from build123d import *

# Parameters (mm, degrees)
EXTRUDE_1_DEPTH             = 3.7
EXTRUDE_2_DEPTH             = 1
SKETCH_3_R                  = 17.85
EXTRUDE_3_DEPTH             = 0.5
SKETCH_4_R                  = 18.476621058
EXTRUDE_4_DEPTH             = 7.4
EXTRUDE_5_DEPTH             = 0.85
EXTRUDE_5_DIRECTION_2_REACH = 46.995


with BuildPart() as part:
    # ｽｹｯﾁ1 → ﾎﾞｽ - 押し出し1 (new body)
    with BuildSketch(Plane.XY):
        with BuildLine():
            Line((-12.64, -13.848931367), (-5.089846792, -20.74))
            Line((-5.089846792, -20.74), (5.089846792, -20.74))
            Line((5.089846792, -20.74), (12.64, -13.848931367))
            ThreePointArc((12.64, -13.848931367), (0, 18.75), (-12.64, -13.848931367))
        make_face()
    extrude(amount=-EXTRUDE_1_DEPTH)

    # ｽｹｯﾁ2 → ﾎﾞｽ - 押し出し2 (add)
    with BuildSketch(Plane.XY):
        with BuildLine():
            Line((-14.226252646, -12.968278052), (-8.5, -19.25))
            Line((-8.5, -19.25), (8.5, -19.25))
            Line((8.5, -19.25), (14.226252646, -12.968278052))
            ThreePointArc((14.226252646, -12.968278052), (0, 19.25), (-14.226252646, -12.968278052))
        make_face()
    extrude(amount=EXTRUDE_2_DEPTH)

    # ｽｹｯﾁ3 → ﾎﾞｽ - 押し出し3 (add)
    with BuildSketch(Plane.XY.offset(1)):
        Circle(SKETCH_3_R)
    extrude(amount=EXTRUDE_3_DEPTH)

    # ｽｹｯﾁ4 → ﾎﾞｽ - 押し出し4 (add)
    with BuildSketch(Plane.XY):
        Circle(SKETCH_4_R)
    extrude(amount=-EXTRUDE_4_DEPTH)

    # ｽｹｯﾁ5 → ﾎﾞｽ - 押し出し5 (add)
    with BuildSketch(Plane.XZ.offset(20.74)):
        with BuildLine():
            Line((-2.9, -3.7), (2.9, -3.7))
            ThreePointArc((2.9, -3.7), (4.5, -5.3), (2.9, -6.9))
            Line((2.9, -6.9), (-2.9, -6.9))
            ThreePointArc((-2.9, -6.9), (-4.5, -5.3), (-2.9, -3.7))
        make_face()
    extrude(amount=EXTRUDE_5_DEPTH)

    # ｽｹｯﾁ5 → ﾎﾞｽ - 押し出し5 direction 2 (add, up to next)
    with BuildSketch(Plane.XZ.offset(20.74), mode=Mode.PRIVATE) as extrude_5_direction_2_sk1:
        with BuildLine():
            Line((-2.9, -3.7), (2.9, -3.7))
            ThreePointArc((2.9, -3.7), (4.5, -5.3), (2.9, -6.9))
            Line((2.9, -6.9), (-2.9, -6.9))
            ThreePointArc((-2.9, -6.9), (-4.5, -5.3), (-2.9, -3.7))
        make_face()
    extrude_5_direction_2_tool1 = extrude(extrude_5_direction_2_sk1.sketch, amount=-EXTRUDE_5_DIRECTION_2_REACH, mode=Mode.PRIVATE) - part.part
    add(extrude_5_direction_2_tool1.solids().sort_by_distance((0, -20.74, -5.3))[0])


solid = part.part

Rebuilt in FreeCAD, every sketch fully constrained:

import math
import FreeCAD as App
import Part
import Sketcher

V = App.Vector

doc = App.newDocument("Part")
params = doc.addObject("Spreadsheet::Sheet", "Params")
for row, (alias, value) in enumerate([
    ("sketch1_radius", "18.75 mm"),
    ("pad1_length", "3.7 mm"),
    ("sketch2_width", "17 mm"),
    ("sketch2_radius", "19.25 mm"),
    ("sketch2_length", "8.5 mm"),
    ("pad2_length", "1 mm"),
    ("sketch3_diameter", "35.7 mm"),
    ("pad3_length", "0.5 mm"),
    ("pad4_length", "7.4 mm"),
    ("sketch5_radius", "1.6 mm"),
    ("sketch5_width", "5.8 mm"),
    ("pad5_length", "0.85 mm"),
    ("sketch6_radius", "1.6 mm"),
    ("sketch6_width", "5.8 mm"),
], start=1):
    params.set(f"A{row}", alias)
    params.set(f"B{row}", "=" + value)
    params.setAlias(f"B{row}", alias)

body = doc.addObject("PartDesign::Body", "Body")
body.AllowCompound = True

sketch1 = body.newObject("Sketcher::SketchObject", "Sketch")
sketch1.AttachmentSupport = (doc.getObject("XY_Plane"), [""])
sketch1.MapMode = "FlatFace"
sketch1.addGeometry([
    Part.LineSegment(V(-12.64, -13.848931, 0), V(-5.089847, -20.74, 0)),
    Part.LineSegment(V(-5.089847, -20.74, 0), V(5.089847, -20.74, 0)),
    Part.LineSegment(V(5.089847, -20.74, 0), V(12.64, -13.848931, 0)),
    Part.ArcOfCircle(Part.Circle(V(0, 0, 0), V(0, 0, 1), 18.75), math.radians(-47.613115), math.radians(227.613115)),
], False)
sketch1.addConstraint([
    Sketcher.Constraint("Coincident", 0, 2, 1, 1),
    Sketcher.Constraint("Coincident", 1, 2, 2, 1),
    Sketcher.Constraint("Tangent", 2, 2, 3, 1),
    Sketcher.Constraint("Tangent", 3, 2, 0, 1),
    Sketcher.Constraint("Horizontal", 1),
    Sketcher.Constraint("Coincident", 3, 3, -1, 1),
    Sketcher.Constraint("Horizontal", 2, 2, 3, 2),
    Sketcher.Constraint("Radius", 3, 18.75),
    Sketcher.Constraint("DistanceY", 0, 2, -1, 1, 20.74),
    Sketcher.Constraint("DistanceX", -1, 1, 2, 2, 12.64),
])
sketch1.setExpression("Constraints[7]", "Params.sketch1_radius")
pad1 = body.newObject("PartDesign::Pad", "Pad")
pad1.Profile = sketch1
pad1.setExpression("Length", "Params.pad1_length")
pad1.Reversed = True

sketch2 = body.newObject("Sketcher::SketchObject", "Sketch001")
sketch2.AttachmentSupport = (doc.getObject("XY_Plane"), [""])
sketch2.MapMode = "FlatFace"
sketch2.addGeometry([
    Part.LineSegment(V(-14.226253, -12.968278, 0), V(-8.5, -19.25, 0)),
    Part.LineSegment(V(-8.5, -19.25, 0), V(8.5, -19.25, 0)),
    Part.LineSegment(V(8.5, -19.25, 0), V(14.226253, -12.968278, 0)),
    Part.ArcOfCircle(Part.Circle(V(0, 0, 0), V(0, 0, 1), 19.25), math.radians(-42.351479), math.radians(222.351479)),
], False)
sketch2.addConstraint([
    Sketcher.Constraint("Coincident", 0, 2, 1, 1),
    Sketcher.Constraint("Coincident", 1, 2, 2, 1),
    Sketcher.Constraint("Tangent", 2, 2, 3, 1),
    Sketcher.Constraint("Tangent", 3, 2, 0, 1),
    Sketcher.Constraint("Horizontal", 1),
    Sketcher.Constraint("Coincident", 3, 3, -1, 1),
    Sketcher.Constraint("Horizontal", 2, 2, 3, 2),
    Sketcher.Constraint("DistanceX", 1, 1, 1, 2, 17.0),
    Sketcher.Constraint("Radius", 3, 19.25),
    Sketcher.Constraint("Distance", 0, 8.5),
])
sketch2.setExpression("Constraints[7]", "Params.sketch2_width")
sketch2.setExpression("Constraints[8]", "Params.sketch2_radius")
sketch2.setExpression("Constraints[9]", "Params.sketch2_length")
pad2 = body.newObject("PartDesign::Pad", "Pad001")
pad2.Profile = sketch2
pad2.setExpression("Length", "Params.pad2_length")

sketch3 = body.newObject("Sketcher::SketchObject", "Sketch002")
sketch3.AttachmentSupport = (doc.getObject("XY_Plane"), [""])
sketch3.MapMode = "FlatFace"
sketch3.AttachmentOffset = App.Placement(V(0, 0, 1), App.Rotation())
sketch3.addGeometry(Part.Circle(V(0, 0, 0), V(0, 0, 1), 17.85), False)
sketch3.addConstraint([
    Sketcher.Constraint("Coincident", 0, 3, -1, 1),
    Sketcher.Constraint("Diameter", 0, 35.7),
])
sketch3.setExpression("Constraints[1]", "Params.sketch3_diameter")
pad3 = body.newObject("PartDesign::Pad", "Pad002")
pad3.Profile = sketch3
pad3.setExpression("Length", "Params.pad3_length")

sketch4 = body.newObject("Sketcher::SketchObject", "Sketch003")
sketch4.AttachmentSupport = (doc.getObject("XY_Plane"), [""])
sketch4.MapMode = "FlatFace"
sketch4.addGeometry(Part.Circle(V(0, 0, 0), V(0, 0, 1), 18.476621), False)
sketch4.addConstraint([
    Sketcher.Constraint("Coincident", 0, 3, -1, 1),
    Sketcher.Constraint("Diameter", 0, 36.953242),
])
pad4 = body.newObject("PartDesign::Pad", "Pad003")
pad4.Profile = sketch4
pad4.setExpression("Length", "Params.pad4_length")
pad4.Reversed = True

sketch5 = body.newObject("Sketcher::SketchObject", "Sketch004")
sketch5.AttachmentSupport = (doc.getObject("XZ_Plane"), [""])
sketch5.MapMode = "FlatFace"
sketch5.AttachmentOffset = App.Placement(V(0, 0, 20.74), App.Rotation())
sketch5.addGeometry([
    Part.LineSegment(V(2.9, -3.7, 0), V(-2.9, -3.7, 0)),
    Part.ArcOfCircle(Part.Circle(V(-2.9, -5.3, 0), V(0, 0, 1), 1.6), math.radians(90), math.radians(270)),
    Part.LineSegment(V(-2.9, -6.9, 0), V(2.9, -6.9, 0)),
    Part.ArcOfCircle(Part.Circle(V(2.9, -5.3, 0), V(0, 0, 1), 1.6), math.radians(-90), math.radians(90)),
], False)
sketch5.addConstraint([
    Sketcher.Constraint("Tangent", 0, 2, 1, 1),
    Sketcher.Constraint("Tangent", 1, 2, 2, 1),
    Sketcher.Constraint("Tangent", 2, 2, 3, 1),
    Sketcher.Constraint("Tangent", 3, 2, 0, 1),
    Sketcher.Constraint("Horizontal", 0),
    Sketcher.Constraint("Horizontal", 2),
    Sketcher.Constraint("Radius", 1, 1.6),
    Sketcher.Constraint("DistanceX", 0, 2, 0, 1, 5.8),
    Sketcher.Constraint("DistanceX", 1, 3, -1, 1, 2.9),
    Sketcher.Constraint("DistanceY", 1, 3, -1, 1, 5.3),
])
sketch5.setExpression("Constraints[6]", "Params.sketch5_radius")
sketch5.setExpression("Constraints[7]", "Params.sketch5_width")
pad5 = body.newObject("PartDesign::Pad", "Pad004")
pad5.Profile = sketch5
pad5.setExpression("Length", "Params.pad5_length")

sketch6 = body.newObject("Sketcher::SketchObject", "Sketch005")
sketch6.AttachmentSupport = (doc.getObject("XZ_Plane"), [""])
sketch6.MapMode = "FlatFace"
sketch6.AttachmentOffset = App.Placement(V(0, 0, 20.74), App.Rotation())
sketch6.addGeometry([
    Part.LineSegment(V(2.9, -3.7, 0), V(-2.9, -3.7, 0)),
    Part.ArcOfCircle(Part.Circle(V(-2.9, -5.3, 0), V(0, 0, 1), 1.6), math.radians(90), math.radians(270)),
    Part.LineSegment(V(-2.9, -6.9, 0), V(2.9, -6.9, 0)),
    Part.ArcOfCircle(Part.Circle(V(2.9, -5.3, 0), V(0, 0, 1), 1.6), math.radians(-90), math.radians(90)),
], False)
sketch6.addConstraint([
    Sketcher.Constraint("Tangent", 0, 2, 1, 1),
    Sketcher.Constraint("Tangent", 1, 2, 2, 1),
    Sketcher.Constraint("Tangent", 2, 2, 3, 1),
    Sketcher.Constraint("Tangent", 3, 2, 0, 1),
    Sketcher.Constraint("Horizontal", 0),
    Sketcher.Constraint("Horizontal", 2),
    Sketcher.Constraint("Radius", 1, 1.6),
    Sketcher.Constraint("DistanceX", 0, 2, 0, 1, 5.8),
    Sketcher.Constraint("DistanceX", 1, 3, -1, 1, 2.9),
    Sketcher.Constraint("DistanceY", 1, 3, -1, 1, 5.3),
])
sketch6.setExpression("Constraints[6]", "Params.sketch6_radius")
sketch6.setExpression("Constraints[7]", "Params.sketch6_width")
pad6 = body.newObject("PartDesign::Pad", "Pad005")
pad6.Profile = sketch6
pad6.Type = "UpToFirst"
pad6.Reversed = True

doc.recompute()
